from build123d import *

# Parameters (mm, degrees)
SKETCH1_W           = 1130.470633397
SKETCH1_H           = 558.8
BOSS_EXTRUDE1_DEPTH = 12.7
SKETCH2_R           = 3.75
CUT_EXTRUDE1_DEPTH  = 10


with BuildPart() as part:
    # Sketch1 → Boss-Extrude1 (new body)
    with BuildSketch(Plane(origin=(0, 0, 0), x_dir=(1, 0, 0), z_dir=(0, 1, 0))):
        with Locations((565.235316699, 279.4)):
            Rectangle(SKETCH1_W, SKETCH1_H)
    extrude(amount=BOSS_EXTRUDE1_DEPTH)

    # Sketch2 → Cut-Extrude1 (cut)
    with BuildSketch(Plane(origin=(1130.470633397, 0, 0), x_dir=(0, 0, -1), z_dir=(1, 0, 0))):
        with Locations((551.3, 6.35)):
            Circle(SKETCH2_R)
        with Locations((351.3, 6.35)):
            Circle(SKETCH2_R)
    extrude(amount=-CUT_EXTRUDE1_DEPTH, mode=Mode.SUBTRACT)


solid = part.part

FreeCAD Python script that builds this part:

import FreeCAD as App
import Part
import Sketcher

V = App.Vector


def add_polygon(sketch, points):
    """Adds a closed chain of lines whose ends are joined by coincident constraints."""
    first, n = sketch.GeometryCount, len(points)
    for a, b in zip(points, points[1:] + points[:1]):
        sketch.addGeometry(Part.LineSegment(App.Vector(*a, 0), App.Vector(*b, 0)), False)
    for i in range(n):
        sketch.addConstraint(Sketcher.Constraint("Coincident", first + i, 2, first + (i + 1) % n, 1))

doc = App.newDocument("Part")
params = doc.addObject("Spreadsheet::Sheet", "Params")
for row, (alias, value) in enumerate([
    ("sketch1_height", "558.8 mm"),
    ("pad1_length", "12.7 mm"),
    ("sketch2_diameter", "7.5 mm"),
    ("pocket1_length", "10 mm"),
], start=1):
    params.set(f"A{row}", alias)
    params.set(f"B{row}", "=" + value)
    params.setAlias(f"B{row}", alias)

body = doc.addObject("PartDesign::Body", "Body")

# Sketch on XZ plane
sketch1 = doc.addObject("Sketcher::SketchObject", "Sketch")
body.addObject(sketch1)
sketch1.AttachmentSupport = (doc.XZ_Plane, [""])
sketch1.MapMode = "FlatFace"
add_polygon(sketch1, [(0, -559), (0, 0), (1130, 0), (1130, -559)])  # lines 0-3
sketch1.addConstraint(Sketcher.Constraint("Vertical", 0))
sketch1.addConstraint(Sketcher.Constraint("Horizontal", 1))
sketch1.addConstraint(Sketcher.Constraint("Vertical", 2))
sketch1.addConstraint(Sketcher.Constraint("Horizontal", 3))
sketch1.addConstraint(Sketcher.Constraint("Coincident", 0, 2, -1, 1))
sketch1.addConstraint(Sketcher.Constraint("DistanceY", 0, 1, 0, 2, 558.8))
sketch1.addConstraint(Sketcher.Constraint("DistanceX", 1, 1, 1, 2, 1130.470633))
sketch1.setExpression("Constraints[9]", "Params.sketch1_height")
pad1 = doc.addObject("PartDesign::Pad", "Pad")
body.addObject(pad1)
pad1.Profile = sketch1
pad1.setExpression("Length", "Params.pad1_length")
pad1.Reversed = True

# Sketch on YZ plane
sketch2 = doc.addObject("Sketcher::SketchObject", "Sketch001")
body.addObject(sketch2)
sketch2.AttachmentSupport = (doc.YZ_Plane, [""])
sketch2.MapMode = "FlatFace"
sketch2.AttachmentOffset = App.Placement(V(0, 0, 1130.470633), App.Rotation())
sketch2.addGeometry(Part.Circle(V(6.3, -551.3, 0), V(0, 0, 1), 3.8), False)
sketch2.addGeometry(Part.Circle(V(6.3, -351.3, 0), V(0, 0, 1), 3.8), False)
sketch2.addConstraint(Sketcher.Constraint("Equal", 0, 1))
sketch2.addConstraint(Sketcher.Constraint("Vertical", 0, 3, 1, 3))
sketch2.addConstraint(Sketcher.Constraint("Diameter", 0, 7.5))
sketch2.addConstraint(Sketcher.Constraint("DistanceY", 0, 3, 1, 3, 200.0))
sketch2.addConstraint(Sketcher.Constraint("DistanceY", 0, 3, -1, 1, 551.3))
sketch2.addConstraint(Sketcher.Constraint("DistanceX", -1, 1, 0, 3, 6.35))
sketch2.setExpression("Constraints[2]", "Params.sketch2_diameter")
pocket1 = doc.addObject("PartDesign::Pocket", "Pocket")
body.addObject(pocket1)
pocket1.Profile = sketch2
pocket1.setExpression("Length", "Params.pocket1_length")

doc.recompute()
